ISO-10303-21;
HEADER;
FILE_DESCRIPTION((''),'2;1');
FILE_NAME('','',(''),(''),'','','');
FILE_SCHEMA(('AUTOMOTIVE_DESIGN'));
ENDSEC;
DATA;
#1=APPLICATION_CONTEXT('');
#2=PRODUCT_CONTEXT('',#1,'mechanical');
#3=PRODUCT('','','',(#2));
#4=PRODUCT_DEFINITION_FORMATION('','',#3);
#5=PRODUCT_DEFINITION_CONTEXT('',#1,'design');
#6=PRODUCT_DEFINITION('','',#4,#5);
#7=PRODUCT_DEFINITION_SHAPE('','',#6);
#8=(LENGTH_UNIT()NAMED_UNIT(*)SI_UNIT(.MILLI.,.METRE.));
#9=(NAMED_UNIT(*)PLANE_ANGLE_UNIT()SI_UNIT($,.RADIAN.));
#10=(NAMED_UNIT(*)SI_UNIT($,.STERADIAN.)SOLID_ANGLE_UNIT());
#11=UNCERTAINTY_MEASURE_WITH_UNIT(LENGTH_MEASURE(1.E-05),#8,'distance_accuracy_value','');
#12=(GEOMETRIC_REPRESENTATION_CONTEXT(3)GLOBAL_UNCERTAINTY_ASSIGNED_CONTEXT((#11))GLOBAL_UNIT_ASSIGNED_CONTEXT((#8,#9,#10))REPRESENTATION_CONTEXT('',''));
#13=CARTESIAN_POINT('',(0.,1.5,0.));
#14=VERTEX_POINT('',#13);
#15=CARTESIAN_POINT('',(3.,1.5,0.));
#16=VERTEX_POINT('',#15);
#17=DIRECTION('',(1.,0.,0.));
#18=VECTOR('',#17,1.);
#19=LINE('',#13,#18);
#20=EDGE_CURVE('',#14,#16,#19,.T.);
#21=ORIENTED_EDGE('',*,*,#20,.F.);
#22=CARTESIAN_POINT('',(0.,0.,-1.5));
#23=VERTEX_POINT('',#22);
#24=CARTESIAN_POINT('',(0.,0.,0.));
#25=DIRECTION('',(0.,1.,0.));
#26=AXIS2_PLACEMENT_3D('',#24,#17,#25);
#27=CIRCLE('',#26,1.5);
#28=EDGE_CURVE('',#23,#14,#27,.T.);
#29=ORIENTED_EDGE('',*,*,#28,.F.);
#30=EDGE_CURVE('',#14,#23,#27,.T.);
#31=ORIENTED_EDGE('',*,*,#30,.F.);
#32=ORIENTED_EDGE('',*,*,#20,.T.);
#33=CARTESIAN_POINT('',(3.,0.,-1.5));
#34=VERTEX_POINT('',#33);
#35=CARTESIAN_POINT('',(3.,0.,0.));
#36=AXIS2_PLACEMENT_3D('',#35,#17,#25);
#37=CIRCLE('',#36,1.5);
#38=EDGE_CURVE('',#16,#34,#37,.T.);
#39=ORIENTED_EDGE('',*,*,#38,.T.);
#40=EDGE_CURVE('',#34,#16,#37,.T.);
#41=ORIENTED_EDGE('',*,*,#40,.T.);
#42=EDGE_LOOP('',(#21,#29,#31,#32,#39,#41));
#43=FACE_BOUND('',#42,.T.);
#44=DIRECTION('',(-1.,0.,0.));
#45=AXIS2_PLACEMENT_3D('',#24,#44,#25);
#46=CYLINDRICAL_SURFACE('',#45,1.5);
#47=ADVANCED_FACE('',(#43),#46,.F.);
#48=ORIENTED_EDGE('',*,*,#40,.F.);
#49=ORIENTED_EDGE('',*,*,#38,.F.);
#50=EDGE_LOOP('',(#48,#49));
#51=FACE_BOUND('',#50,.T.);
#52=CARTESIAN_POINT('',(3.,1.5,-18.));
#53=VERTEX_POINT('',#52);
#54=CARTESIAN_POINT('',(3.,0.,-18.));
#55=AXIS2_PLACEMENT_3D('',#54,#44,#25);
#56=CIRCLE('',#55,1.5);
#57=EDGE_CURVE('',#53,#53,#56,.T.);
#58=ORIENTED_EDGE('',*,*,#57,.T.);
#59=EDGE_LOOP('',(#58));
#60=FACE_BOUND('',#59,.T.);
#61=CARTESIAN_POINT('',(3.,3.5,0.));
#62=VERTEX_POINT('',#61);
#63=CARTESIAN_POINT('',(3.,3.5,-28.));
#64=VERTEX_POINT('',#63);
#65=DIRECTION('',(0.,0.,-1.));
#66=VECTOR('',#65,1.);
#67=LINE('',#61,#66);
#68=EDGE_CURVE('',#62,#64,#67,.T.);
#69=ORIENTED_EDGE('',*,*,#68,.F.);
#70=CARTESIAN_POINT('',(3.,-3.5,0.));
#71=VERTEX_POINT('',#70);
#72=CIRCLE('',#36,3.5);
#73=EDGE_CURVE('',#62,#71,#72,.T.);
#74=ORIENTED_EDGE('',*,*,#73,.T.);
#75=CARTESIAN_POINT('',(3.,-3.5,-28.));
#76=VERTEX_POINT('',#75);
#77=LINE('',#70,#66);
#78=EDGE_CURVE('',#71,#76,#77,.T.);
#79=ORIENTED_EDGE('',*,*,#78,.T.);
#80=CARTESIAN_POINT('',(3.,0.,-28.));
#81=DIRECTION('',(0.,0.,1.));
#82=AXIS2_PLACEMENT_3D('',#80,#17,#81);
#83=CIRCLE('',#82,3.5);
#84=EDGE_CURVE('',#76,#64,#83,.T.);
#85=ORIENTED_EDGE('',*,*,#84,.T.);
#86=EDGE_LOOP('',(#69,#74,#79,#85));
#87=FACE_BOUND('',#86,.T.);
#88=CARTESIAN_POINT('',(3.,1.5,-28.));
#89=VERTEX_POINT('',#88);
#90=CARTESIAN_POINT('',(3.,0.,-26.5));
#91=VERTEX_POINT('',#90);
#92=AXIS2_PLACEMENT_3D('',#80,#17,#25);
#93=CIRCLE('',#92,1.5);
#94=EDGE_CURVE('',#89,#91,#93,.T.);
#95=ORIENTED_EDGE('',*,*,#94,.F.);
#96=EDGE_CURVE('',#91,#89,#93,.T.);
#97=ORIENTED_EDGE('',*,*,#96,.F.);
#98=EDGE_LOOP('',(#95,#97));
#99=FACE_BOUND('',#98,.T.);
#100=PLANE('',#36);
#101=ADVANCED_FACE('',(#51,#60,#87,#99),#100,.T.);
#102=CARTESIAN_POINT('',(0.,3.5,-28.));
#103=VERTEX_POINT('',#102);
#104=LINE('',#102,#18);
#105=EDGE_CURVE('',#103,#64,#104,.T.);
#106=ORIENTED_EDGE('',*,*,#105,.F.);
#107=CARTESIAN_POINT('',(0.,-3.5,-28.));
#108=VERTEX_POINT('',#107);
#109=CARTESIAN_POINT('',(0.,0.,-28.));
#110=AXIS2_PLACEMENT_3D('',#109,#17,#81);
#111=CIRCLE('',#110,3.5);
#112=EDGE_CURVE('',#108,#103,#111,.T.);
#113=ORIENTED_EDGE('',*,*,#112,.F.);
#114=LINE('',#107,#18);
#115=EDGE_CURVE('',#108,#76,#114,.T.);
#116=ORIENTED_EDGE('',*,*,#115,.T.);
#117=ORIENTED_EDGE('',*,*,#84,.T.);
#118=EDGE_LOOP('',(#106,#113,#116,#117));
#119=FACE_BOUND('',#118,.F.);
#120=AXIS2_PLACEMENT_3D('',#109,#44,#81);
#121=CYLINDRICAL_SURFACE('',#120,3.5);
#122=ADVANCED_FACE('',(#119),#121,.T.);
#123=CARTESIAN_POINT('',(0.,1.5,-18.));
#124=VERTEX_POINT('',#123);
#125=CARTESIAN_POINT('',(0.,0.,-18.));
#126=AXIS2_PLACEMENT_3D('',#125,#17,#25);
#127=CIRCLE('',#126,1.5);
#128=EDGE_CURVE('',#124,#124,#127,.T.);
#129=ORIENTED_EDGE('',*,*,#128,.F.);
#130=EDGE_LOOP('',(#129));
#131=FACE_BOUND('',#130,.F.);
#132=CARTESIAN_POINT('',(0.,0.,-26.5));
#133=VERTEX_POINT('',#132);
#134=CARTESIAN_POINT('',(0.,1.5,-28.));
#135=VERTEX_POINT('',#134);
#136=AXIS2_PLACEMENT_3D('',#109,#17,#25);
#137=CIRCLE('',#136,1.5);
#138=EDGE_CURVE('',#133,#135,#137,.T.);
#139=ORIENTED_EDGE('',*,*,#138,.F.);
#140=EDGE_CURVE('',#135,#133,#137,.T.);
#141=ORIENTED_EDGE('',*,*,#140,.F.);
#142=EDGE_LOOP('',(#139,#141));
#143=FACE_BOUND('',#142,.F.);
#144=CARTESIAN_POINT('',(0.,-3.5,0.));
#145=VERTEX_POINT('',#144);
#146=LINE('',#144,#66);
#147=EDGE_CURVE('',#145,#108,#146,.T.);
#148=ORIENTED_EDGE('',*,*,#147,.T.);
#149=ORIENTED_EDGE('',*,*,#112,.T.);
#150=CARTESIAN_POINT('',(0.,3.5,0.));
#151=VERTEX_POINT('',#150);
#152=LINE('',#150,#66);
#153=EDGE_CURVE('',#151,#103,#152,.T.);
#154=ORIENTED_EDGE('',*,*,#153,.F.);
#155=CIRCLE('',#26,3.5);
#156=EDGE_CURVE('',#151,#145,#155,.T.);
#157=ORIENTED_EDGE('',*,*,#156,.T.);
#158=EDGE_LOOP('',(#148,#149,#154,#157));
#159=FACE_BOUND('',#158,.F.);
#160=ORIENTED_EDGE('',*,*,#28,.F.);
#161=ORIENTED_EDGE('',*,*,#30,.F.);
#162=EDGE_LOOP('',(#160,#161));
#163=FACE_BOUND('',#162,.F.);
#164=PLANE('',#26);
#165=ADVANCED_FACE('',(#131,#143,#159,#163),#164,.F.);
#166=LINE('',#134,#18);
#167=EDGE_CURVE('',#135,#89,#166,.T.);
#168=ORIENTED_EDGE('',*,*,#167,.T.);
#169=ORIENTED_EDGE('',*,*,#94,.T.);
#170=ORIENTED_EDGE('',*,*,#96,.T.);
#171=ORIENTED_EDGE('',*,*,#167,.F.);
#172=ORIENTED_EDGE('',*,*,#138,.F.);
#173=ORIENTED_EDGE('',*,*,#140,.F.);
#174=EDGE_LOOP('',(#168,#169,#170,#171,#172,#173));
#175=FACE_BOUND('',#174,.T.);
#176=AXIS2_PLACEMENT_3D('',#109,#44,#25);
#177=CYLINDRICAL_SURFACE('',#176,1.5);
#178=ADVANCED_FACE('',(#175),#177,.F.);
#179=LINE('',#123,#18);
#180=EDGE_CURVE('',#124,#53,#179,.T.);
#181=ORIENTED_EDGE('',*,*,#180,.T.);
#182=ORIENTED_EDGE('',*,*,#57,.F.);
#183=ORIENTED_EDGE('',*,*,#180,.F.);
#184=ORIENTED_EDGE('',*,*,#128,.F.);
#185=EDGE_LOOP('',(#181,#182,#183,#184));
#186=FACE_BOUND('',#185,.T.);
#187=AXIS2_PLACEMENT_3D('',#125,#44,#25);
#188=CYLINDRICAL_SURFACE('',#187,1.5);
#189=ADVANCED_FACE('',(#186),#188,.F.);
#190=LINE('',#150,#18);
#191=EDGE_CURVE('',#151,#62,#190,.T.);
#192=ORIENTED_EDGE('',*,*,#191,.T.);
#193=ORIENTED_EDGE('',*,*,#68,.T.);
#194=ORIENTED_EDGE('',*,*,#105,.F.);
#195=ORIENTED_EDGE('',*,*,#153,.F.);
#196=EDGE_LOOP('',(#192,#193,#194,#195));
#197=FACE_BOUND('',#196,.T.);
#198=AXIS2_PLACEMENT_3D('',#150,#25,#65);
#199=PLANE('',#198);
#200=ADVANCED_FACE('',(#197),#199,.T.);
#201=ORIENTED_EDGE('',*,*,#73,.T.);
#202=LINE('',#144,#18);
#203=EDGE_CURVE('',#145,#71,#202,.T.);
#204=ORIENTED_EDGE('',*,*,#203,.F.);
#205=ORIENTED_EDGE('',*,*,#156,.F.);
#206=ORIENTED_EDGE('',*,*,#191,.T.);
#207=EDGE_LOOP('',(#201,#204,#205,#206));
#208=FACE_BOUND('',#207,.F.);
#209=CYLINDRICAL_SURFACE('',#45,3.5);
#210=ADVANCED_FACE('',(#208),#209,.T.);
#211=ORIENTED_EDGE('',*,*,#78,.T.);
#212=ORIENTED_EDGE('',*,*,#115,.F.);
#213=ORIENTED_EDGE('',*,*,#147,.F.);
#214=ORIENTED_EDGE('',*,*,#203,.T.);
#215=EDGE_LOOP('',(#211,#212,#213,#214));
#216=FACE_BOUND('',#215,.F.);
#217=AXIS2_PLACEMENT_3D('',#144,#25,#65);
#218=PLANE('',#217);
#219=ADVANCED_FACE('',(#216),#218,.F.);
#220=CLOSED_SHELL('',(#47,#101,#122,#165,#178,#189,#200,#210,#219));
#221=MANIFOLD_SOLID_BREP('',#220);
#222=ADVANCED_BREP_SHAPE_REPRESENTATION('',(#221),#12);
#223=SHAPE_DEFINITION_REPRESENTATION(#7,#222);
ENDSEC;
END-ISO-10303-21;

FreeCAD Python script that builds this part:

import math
import FreeCAD as App
import Part
import Sketcher

V = App.Vector
Q = App.Units.Quantity

doc = App.newDocument("Part")
body = doc.addObject("PartDesign::Body", "Body")

# Sketch on YZ plane
sketch1 = body.newObject("Sketcher::SketchObject", "Sketch")
sketch1.AttachmentSupport = (doc.getObject("YZ_Plane"), [""])
sketch1.MapMode = "FlatFace"
sketch1.addGeometry(Part.ArcOfCircle(Part.Circle(V(0, 0, 0), V(0, 0, 1), 3.5), math.radians(0), math.radians(180)), False)
sketch1.addGeometry(Part.LineSegment(V(-3.5, 0, 0), V(-3.5, -28, 0)), False)
sketch1.addGeometry(Part.ArcOfCircle(Part.Circle(V(0, -28, 0), V(0, 0, 1), 3.5), math.radians(180), math.radians(360)), False)
sketch1.addGeometry(Part.LineSegment(V(3.5, -28, 0), V(3.5, 0, 0)), False)
sketch1.addGeometry(Part.Circle(V(0, -18, 0), V(0, 0, 1), 1.5), False)
sketch1.addGeometry(Part.Circle(V(0, -28, 0), V(0, 0, 1), 1.5), False)
sketch1.addGeometry(Part.Circle(V(0, 0, 0), V(0, 0, 1), 1.5), False)
sketch1.addConstraint(Sketcher.Constraint("Tangent", 0, 2, 1, 1))
sketch1.addConstraint(Sketcher.Constraint("Tangent", 1, 2, 2, 1))
sketch1.addConstraint(Sketcher.Constraint("Tangent", 2, 2, 3, 1))
sketch1.addConstraint(Sketcher.Constraint("Tangent", 3, 2, 0, 1))
sketch1.addConstraint(Sketcher.Constraint("Vertical", 1))
sketch1.addConstraint(Sketcher.Constraint("Vertical", 3))
sketch1.addConstraint(Sketcher.Constraint("Coincident", 0, 3, -1, 1))
sketch1.addConstraint(Sketcher.Constraint("Coincident", 6, 3, -1, 1))
sketch1.addConstraint(Sketcher.Constraint("Coincident", 5, 3, 2, 3))
sketch1.addConstraint(Sketcher.Constraint("Equal", 4, 5))
sketch1.addConstraint(Sketcher.Constraint("Equal", 5, 6))
sketch1.addConstraint(Sketcher.Constraint("PointOnObject", 4, 3, -2))
sketch1.addConstraint(Sketcher.Constraint("Diameter", 4, Q("3 mm")))
sketch1.addConstraint(Sketcher.Constraint("Radius", 0, Q("3.5 mm")))
sketch1.addConstraint(Sketcher.Constraint("DistanceY", 4, 3, -1, 1, Q("18 mm")))
sketch1.addConstraint(Sketcher.Constraint("DistanceY", 2, 3, 4, 3, Q("10 mm")))
pad1 = body.newObject("PartDesign::Pad", "Pad")
pad1.Profile = sketch1
pad1.Length = 3

doc.recompute()
